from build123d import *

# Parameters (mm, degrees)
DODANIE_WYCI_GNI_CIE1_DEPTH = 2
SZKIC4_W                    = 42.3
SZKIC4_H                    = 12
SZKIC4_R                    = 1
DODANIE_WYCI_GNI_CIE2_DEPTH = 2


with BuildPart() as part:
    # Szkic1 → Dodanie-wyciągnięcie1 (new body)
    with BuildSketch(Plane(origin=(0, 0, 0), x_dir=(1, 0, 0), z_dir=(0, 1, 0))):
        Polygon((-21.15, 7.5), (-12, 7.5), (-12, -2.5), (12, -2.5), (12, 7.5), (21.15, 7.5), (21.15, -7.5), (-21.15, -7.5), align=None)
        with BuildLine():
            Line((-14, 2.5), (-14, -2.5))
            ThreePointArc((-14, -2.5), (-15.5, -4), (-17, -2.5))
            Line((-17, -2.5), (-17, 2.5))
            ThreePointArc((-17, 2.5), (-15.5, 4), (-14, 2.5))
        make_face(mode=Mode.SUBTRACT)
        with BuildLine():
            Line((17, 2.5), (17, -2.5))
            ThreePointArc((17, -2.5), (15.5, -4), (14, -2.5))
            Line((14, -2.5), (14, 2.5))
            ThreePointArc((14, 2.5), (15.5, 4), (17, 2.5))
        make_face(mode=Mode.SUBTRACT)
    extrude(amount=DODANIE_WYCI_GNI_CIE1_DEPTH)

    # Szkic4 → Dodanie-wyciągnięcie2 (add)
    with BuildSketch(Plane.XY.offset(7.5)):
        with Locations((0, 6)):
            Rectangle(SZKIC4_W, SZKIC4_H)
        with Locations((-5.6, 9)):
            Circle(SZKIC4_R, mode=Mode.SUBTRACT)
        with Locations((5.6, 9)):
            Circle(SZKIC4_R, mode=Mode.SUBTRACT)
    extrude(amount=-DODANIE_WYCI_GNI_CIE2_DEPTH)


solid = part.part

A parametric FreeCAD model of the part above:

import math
import FreeCAD as App
import Part
import Sketcher

V = App.Vector

doc = App.newDocument("Part")
body = doc.addObject("PartDesign::Body", "Body")

# Sketch on XZ plane
sketch1 = body.newObject("Sketcher::SketchObject", "Sketch")
sketch1.AttachmentSupport = (doc.getObject("XZ_Plane"), [""])
sketch1.MapMode = "FlatFace"
sketch1.addGeometry(Part.LineSegment(V(-12, -7.5, 0), V(-21.1, -7.5, 0)), False)
sketch1.addGeometry(Part.LineSegment(V(-21.1, -7.5, 0), V(-21.1, 7.5, 0)), False)
sketch1.addGeometry(Part.LineSegment(V(-21.1, 7.5, 0), V(21.1, 7.5, 0)), False)
sketch1.addGeometry(Part.LineSegment(V(21.1, 7.5, 0), V(21.1, -7.5, 0)), False)
sketch1.addGeometry(Part.LineSegment(V(21.1, -7.5, 0), V(12, -7.5, 0)), False)
sketch1.addGeometry(Part.LineSegment(V(12, -7.5, 0), V(12, 2.5, 0)), False)
sketch1.addGeometry(Part.LineSegment(V(12, 2.5, 0), V(-12, 2.5, 0)), False)
sketch1.addGeometry(Part.LineSegment(V(-12, 2.5, 0), V(-12, -7.5, 0)), False)
sketch1.addGeometry(Part.LineSegment(V(17, -2.5, 0), V(17, 2.5, 0)), False)
sketch1.addGeometry(Part.ArcOfCircle(Part.Circle(V(15.5, 2.5, 0), V(0, 0, 1), 1.5), math.radians(0), math.radians(180)), False)
sketch1.addGeometry(Part.LineSegment(V(14, 2.5, 0), V(14, -2.5, 0)), False)
sketch1.addGeometry(Part.ArcOfCircle(Part.Circle(V(15.5, -2.5, 0), V(0, 0, 1), 1.5), math.radians(180), math.radians(360)), False)
sketch1.addGeometry(Part.LineSegment(V(-14, -2.5, 0), V(-14, 2.5, 0)), False)
sketch1.addGeometry(Part.ArcOfCircle(Part.Circle(V(-15.5, 2.5, 0), V(0, 0, 1), 1.5), math.radians(0), math.radians(180)), False)
sketch1.addGeometry(Part.LineSegment(V(-17, 2.5, 0), V(-17, -2.5, 0)), False)
sketch1.addGeometry(Part.ArcOfCircle(Part.Circle(V(-15.5, -2.5, 0), V(0, 0, 1), 1.5), math.radians(180), math.radians(360)), False)
sketch1.addConstraint(Sketcher.Constraint("Coincident", 0, 2, 1, 1))
sketch1.addConstraint(Sketcher.Constraint("Coincident", 1, 2, 2, 1))
sketch1.addConstraint(Sketcher.Constraint("Coincident", 2, 2, 3, 1))
sketch1.addConstraint(Sketcher.Constraint("Coincident", 3, 2, 4, 1))
sketch1.addConstraint(Sketcher.Constraint("Coincident", 4, 2, 5, 1))
sketch1.addConstraint(Sketcher.Constraint("Coincident", 5, 2, 6, 1))
sketch1.addConstraint(Sketcher.Constraint("Coincident", 6, 2, 7, 1))
sketch1.addConstraint(Sketcher.Constraint("Coincident", 7, 2, 0, 1))
sketch1.addConstraint(Sketcher.Constraint("Tangent", 8, 2, 9, 1))
sketch1.addConstraint(Sketcher.Constraint("Tangent", 9, 2, 10, 1))
sketch1.addConstraint(Sketcher.Constraint("Tangent", 10, 2, 11, 1))
sketch1.addConstraint(Sketcher.Constraint("Tangent", 11, 2, 8, 1))
sketch1.addConstraint(Sketcher.Constraint("Tangent", 12, 2, 13, 1))
sketch1.addConstraint(Sketcher.Constraint("Tangent", 13, 2, 14, 1))
sketch1.addConstraint(Sketcher.Constraint("Tangent", 14, 2, 15, 1))
sketch1.addConstraint(Sketcher.Constraint("Tangent", 15, 2, 12, 1))
sketch1.addConstraint(Sketcher.Constraint("Horizontal", 0))
sketch1.addConstraint(Sketcher.Constraint("Vertical", 1))
sketch1.addConstraint(Sketcher.Constraint("Horizontal", 2))
sketch1.addConstraint(Sketcher.Constraint("Vertical", 3))
sketch1.addConstraint(Sketcher.Constraint("Horizontal", 4))
sketch1.addConstraint(Sketcher.Constraint("Vertical", 5))
sketch1.addConstraint(Sketcher.Constraint("Horizontal", 6))
sketch1.addConstraint(Sketcher.Constraint("Vertical", 7))
sketch1.addConstraint(Sketcher.Constraint("Vertical", 8))
sketch1.addConstraint(Sketcher.Constraint("Vertical", 10))
sketch1.addConstraint(Sketcher.Constraint("Vertical", 12))
sketch1.addConstraint(Sketcher.Constraint("Vertical", 14))
sketch1.addConstraint(Sketcher.Constraint("Equal", 11, 13))
sketch1.addConstraint(Sketcher.Constraint("Symmetric", 11, 3, 13, 3, -1, 1))
sketch1.addConstraint(Sketcher.Constraint("Symmetric", 0, 2, 2, 2, -1, 1))
sketch1.addConstraint(Sketcher.Constraint("Symmetric", 4, 2, 7, 2, -2))
sketch1.addConstraint(Sketcher.Constraint("Horizontal", 9, 3, 13, 3))
sketch1.addConstraint(Sketcher.Constraint("Horizontal", 11, 3, 15, 3))
sketch1.addConstraint(Sketcher.Constraint("Horizontal", 13, 3, 5, 2))
sketch1.addConstraint(Sketcher.Constraint("Radius", 9, 1.5))
sketch1.addConstraint(Sketcher.Constraint("DistanceX", 6, 2, 6, 1, 24.0))
sketch1.addConstraint(Sketcher.Constraint("DistanceY", 1, 1, 1, 2, 15.0))
sketch1.addConstraint(Sketcher.Constraint("DistanceY", 5, 1, 5, 2, 10.0))
sketch1.addConstraint(Sketcher.Constraint("DistanceX", 2, 1, 2, 2, 42.3))
sketch1.addConstraint(Sketcher.Constraint("DistanceX", -1, 1, 8, 2, 17.0))
pad1 = body.newObject("PartDesign::Pad", "Pad")
pad1.Profile = sketch1
pad1.Length = 2
pad1.Reversed = True

# Sketch on XY plane
sketch2 = body.newObject("Sketcher::SketchObject", "Sketch001")
sketch2.AttachmentSupport = (doc.getObject("XY_Plane"), [""])
sketch2.MapMode = "FlatFace"
sketch2.AttachmentOffset = App.Placement(V(0, 0, 7.5), App.Rotation())
sketch2.addGeometry(Part.LineSegment(V(-21.1, 12, 0), V(-21.1, 0, 0)), False)
sketch2.addGeometry(Part.LineSegment(V(-21.1, 0, 0), V(21.1, 0, 0)), False)
sketch2.addGeometry(Part.LineSegment(V(21.1, 0, 0), V(21.1, 12, 0)), False)
sketch2.addGeometry(Part.LineSegment(V(21.1, 12, 0), V(-21.1, 12, 0)), False)
sketch2.addGeometry(Part.Circle(V(-5.6, 9, 0), V(0, 0, 1), 1), False)
sketch2.addGeometry(Part.Circle(V(5.6, 9, 0), V(0, 0, 1), 1), False)
sketch2.addConstraint(Sketcher.Constraint("Coincident", 0, 2, 1, 1))
sketch2.addConstraint(Sketcher.Constraint("Coincident", 1, 2, 2, 1))
sketch2.addConstraint(Sketcher.Constraint("Coincident", 2, 2, 3, 1))
sketch2.addConstraint(Sketcher.Constraint("Coincident", 3, 2, 0, 1))
sketch2.addConstraint(Sketcher.Constraint("Vertical", 0))
sketch2.addConstraint(Sketcher.Constraint("Horizontal", 1))
sketch2.addConstraint(Sketcher.Constraint("Vertical", 2))
sketch2.addConstraint(Sketcher.Constraint("Horizontal", 3))
sketch2.addConstraint(Sketcher.Constraint("Equal", 4, 5))
sketch2.addConstraint(Sketcher.Constraint("Symmetric", 0, 2, 1, 2, -1, 1))
sketch2.addConstraint(Sketcher.Constraint("Symmetric", 4, 3, 5, 3, -2))
sketch2.addConstraint(Sketcher.Constraint("Diameter", 4, 2.0))
sketch2.addConstraint(Sketcher.Constraint("DistanceY", 0, 2, 0, 1, 12.0))
sketch2.addConstraint(Sketcher.Constraint("DistanceX", 1, 1, 1, 2, 42.3))
sketch2.addConstraint(Sketcher.Constraint("DistanceY", -1, 1, 4, 3, 9.0))
sketch2.addConstraint(Sketcher.Constraint("DistanceX", 4, 3, -1, 1, 5.6))
pad2 = body.newObject("PartDesign::Pad", "Pad001")
pad2.Profile = sketch2
pad2.Length = 2
pad2.Reversed = True

doc.recompute()
